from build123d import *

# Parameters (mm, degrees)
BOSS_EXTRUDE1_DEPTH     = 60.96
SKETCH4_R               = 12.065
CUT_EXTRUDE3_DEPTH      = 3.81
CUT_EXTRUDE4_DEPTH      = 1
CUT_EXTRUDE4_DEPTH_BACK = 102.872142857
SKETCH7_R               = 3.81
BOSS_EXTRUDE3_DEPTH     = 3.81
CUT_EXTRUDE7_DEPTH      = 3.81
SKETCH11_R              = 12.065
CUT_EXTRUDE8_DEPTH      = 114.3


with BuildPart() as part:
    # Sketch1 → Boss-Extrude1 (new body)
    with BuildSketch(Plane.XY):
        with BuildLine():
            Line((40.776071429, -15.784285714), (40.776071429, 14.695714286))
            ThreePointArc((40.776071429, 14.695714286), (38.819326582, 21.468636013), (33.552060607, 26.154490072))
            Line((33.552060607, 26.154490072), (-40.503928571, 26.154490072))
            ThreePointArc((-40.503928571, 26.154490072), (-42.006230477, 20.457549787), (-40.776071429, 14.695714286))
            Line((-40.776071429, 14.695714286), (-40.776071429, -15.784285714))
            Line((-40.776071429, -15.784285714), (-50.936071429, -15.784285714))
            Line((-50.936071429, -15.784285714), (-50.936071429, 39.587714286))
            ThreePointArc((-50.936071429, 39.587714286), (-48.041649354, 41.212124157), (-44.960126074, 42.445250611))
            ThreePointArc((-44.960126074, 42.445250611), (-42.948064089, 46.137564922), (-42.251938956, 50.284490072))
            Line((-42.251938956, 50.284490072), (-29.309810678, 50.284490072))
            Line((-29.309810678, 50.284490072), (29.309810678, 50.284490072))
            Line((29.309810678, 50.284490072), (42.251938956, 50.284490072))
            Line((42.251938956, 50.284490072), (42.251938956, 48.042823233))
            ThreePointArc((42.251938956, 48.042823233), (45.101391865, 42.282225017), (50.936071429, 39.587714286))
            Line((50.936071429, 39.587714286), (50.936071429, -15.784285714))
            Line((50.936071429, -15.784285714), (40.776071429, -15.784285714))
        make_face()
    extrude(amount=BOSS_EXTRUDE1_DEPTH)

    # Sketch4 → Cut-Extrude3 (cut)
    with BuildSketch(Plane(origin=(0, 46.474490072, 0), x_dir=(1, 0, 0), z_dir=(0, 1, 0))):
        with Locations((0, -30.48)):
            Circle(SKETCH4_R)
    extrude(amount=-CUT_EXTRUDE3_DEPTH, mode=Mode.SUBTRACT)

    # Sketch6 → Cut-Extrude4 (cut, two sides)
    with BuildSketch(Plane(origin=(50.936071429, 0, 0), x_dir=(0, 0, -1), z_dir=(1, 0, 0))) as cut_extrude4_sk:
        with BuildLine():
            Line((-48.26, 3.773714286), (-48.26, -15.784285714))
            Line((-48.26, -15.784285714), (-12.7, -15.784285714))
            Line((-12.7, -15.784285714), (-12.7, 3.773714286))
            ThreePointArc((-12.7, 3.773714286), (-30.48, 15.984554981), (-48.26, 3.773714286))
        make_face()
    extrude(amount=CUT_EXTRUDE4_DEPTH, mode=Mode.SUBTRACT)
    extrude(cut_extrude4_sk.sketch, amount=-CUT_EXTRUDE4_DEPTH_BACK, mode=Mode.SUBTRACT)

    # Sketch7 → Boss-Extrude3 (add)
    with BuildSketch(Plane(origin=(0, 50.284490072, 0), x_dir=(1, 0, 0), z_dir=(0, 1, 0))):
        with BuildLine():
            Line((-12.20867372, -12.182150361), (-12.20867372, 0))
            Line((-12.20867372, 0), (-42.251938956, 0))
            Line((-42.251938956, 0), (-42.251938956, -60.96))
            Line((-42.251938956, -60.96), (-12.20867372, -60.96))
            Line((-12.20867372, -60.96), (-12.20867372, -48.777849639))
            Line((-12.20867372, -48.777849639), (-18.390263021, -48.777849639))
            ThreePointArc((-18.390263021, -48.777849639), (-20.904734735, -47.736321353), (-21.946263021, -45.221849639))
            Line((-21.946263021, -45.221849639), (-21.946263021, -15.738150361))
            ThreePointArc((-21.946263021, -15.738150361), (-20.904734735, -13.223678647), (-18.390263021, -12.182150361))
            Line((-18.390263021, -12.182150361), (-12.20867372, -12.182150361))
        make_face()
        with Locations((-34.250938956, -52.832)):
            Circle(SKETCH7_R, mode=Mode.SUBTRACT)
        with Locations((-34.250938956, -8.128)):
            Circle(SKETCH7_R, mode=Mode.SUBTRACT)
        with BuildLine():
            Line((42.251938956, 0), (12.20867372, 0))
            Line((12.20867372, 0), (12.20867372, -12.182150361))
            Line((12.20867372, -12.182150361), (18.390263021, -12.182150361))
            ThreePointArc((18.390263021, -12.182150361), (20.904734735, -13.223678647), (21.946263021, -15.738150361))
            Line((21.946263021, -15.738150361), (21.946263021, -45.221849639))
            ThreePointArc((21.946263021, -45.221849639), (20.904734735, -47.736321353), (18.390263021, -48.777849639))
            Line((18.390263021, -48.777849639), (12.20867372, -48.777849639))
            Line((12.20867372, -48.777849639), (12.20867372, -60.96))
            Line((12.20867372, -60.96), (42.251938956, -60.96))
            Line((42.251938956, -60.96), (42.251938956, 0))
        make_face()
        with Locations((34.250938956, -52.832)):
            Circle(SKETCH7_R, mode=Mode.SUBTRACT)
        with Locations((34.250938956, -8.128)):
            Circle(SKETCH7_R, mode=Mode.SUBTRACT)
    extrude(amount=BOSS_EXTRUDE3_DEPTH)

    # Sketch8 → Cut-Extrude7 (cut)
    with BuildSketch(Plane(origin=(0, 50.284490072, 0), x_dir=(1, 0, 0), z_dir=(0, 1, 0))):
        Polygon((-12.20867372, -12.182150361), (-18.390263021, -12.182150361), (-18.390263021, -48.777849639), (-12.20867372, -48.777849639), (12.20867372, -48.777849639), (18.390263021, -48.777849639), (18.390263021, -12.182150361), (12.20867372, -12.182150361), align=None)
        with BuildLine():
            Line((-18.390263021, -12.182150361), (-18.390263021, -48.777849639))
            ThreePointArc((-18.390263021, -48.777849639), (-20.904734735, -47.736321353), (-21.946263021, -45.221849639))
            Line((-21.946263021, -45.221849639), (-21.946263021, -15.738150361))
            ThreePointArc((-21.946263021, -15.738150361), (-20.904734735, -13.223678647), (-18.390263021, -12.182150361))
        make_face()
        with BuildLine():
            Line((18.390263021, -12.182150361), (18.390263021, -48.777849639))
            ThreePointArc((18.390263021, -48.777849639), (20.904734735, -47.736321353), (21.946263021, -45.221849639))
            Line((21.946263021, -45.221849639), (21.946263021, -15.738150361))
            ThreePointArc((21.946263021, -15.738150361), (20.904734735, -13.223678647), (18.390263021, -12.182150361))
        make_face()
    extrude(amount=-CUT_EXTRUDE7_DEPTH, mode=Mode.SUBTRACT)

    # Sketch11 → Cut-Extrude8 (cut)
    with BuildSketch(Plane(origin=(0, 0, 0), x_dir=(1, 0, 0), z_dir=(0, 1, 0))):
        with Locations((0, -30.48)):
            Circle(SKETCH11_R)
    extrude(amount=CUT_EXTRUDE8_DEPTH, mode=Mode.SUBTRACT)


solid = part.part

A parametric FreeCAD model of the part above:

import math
import FreeCAD as App
import Part
import Sketcher

V = App.Vector
Q = App.Units.Quantity

doc = App.newDocument("Part")
body = doc.addObject("PartDesign::Body", "Body")

sketch1 = body.newObject("Sketcher::SketchObject", "Sketch")
sketch1.AttachmentSupport = (doc.getObject("XY_Plane"), [""])
sketch1.MapMode = "FlatFace"
sketch1.addGeometry(Part.LineSegment(V(40.776071, 14.695714, 0), V(40.776071, -15.784286, 0)), False)
sketch1.addGeometry(Part.LineSegment(V(40.776071, -15.784286, 0), V(50.936071, -15.784286, 0)), False)
sketch1.addGeometry(Part.LineSegment(V(50.936071, -15.784286, 0), V(50.936071, 39.587714, 0)), False)
sketch1.addGeometry(Part.ArcOfCircle(Part.Circle(V(51.834586, 49.197801, 0), V(0, 0, 1), 9.652), math.radians(-173.1274), math.radians(-95.341458)), False)
sketch1.addGeometry(Part.LineSegment(V(42.251939, 48.042823, 0), V(42.251939, 50.28449, 0)), False)
sketch1.addGeometry(Part.LineSegment(V(42.251939, 50.28449, 0), V(-42.251939, 50.28449, 0)), False)
sketch1.addGeometry(Part.ArcOfCircle(Part.Circle(V(-54.951939, 50.28449, 0), V(0, 0, 1), 12.7), math.radians(-38.116535), math.radians(0)), False)
sketch1.addGeometry(Part.ArcOfCircle(Part.Circle(V(-37.084317, 18.297132, 0), V(0, 0, 1), 25.4), math.radians(108.063524), math.radians(123.048221)), False)
sketch1.addGeometry(Part.LineSegment(V(-50.936071, 39.587714, 0), V(-50.936071, -15.784286, 0)), False)
sketch1.addGeometry(Part.LineSegment(V(-50.936071, -15.784286, 0), V(-40.776071, -15.784286, 0)), False)
sketch1.addGeometry(Part.LineSegment(V(-40.776071, -15.784286, 0), V(-40.776071, 14.695714, 0)), False)
sketch1.addGeometry(Part.ArcOfCircle(Part.Circle(V(-29.309811, 20.156013, 0), V(0, 0, 1), 12.7), math.radians(151.814936), math.radians(205.464057)), False)
sketch1.addGeometry(Part.LineSegment(V(-40.503929, 26.15449, 0), V(33.552061, 26.15449, 0)), False)
sketch1.addGeometry(Part.ArcOfCircle(Part.Circle(V(28.076071, 14.695714, 0), V(0, 0, 1), 12.7), math.radians(0), math.radians(64.457515)), False)
sketch1.addConstraint(Sketcher.Constraint("Coincident", 0, 2, 1, 1))
sketch1.addConstraint(Sketcher.Constraint("Coincident", 1, 2, 2, 1))
sketch1.addConstraint(Sketcher.Constraint("Coincident", 2, 2, 3, 2))
sketch1.addConstraint(Sketcher.Constraint("Coincident", 3, 1, 4, 1))
sketch1.addConstraint(Sketcher.Constraint("Coincident", 4, 2, 5, 1))
sketch1.addConstraint(Sketcher.Constraint("Coincident", 5, 2, 6, 2))
sketch1.addConstraint(Sketcher.Constraint("Coincident", 6, 1, 7, 1))
sketch1.addConstraint(Sketcher.Constraint("Coincident", 7, 2, 8, 1))
sketch1.addConstraint(Sketcher.Constraint("Coincident", 8, 2, 9, 1))
sketch1.addConstraint(Sketcher.Constraint("Coincident", 9, 2, 10, 1))
sketch1.addConstraint(Sketcher.Constraint("Coincident", 10, 2, 11, 2))
sketch1.addConstraint(Sketcher.Constraint("Coincident", 11, 1, 12, 1))
sketch1.addConstraint(Sketcher.Constraint("Coincident", 12, 2, 13, 2))
sketch1.addConstraint(Sketcher.Constraint("Tangent", 13, 1, 0, 1))
sketch1.addConstraint(Sketcher.Constraint("Vertical", 0))
sketch1.addConstraint(Sketcher.Constraint("Horizontal", 1))
sketch1.addConstraint(Sketcher.Constraint("Vertical", 2))
sketch1.addConstraint(Sketcher.Constraint("Vertical", 4))
sketch1.addConstraint(Sketcher.Constraint("Horizontal", 5))
sketch1.addConstraint(Sketcher.Constraint("Vertical", 8))
sketch1.addConstraint(Sketcher.Constraint("Horizontal", 9))
sketch1.addConstraint(Sketcher.Constraint("Vertical", 10))
sketch1.addConstraint(Sketcher.Constraint("Horizontal", 12))
sketch1.addConstraint(Sketcher.Constraint("Equal", 6, 11))
sketch1.addConstraint(Sketcher.Constraint("Equal", 11, 13))
sketch1.addConstraint(Sketcher.Constraint("Symmetric", 2, 2, 7, 2, -2))
sketch1.addConstraint(Sketcher.Constraint("Symmetric", 0, 2, 9, 2, -2))
sketch1.addConstraint(Sketcher.Constraint("Horizontal", 6, 3, 4, 2))
sketch1.addConstraint(Sketcher.Constraint("Horizontal", 13, 3, 10, 2))
sketch1.addConstraint(Sketcher.Constraint("Radius", 7, Q("1 in")))
sketch1.addConstraint(Sketcher.Constraint("Radius", 6, Q("0.5 in")))
sketch1.addConstraint(Sketcher.Constraint("Radius", 3, Q("0.38 in")))
sketch1.addConstraint(Sketcher.Constraint("DistanceX", 1, 1, 1, 2, Q("0.4 in")))
sketch1.addConstraint(Sketcher.Constraint("DistanceY", 0, 2, 0, 1, Q("1.2 in")))
sketch1.addConstraint(Sketcher.Constraint("DistanceY", 2, 1, 2, 2, Q("2.18 in")))
sketch1.addConstraint(Sketcher.Constraint("DistanceY", 12, 2, 4, 2, Q("0.95 in")))
sketch1.addConstraint(Sketcher.Constraint("DistanceX", 12, 1, 12, 2, 74.055989))
sketch1.addConstraint(Sketcher.Constraint("DistanceY", -1, 1, 3, 3, 49.197801))
sketch1.addConstraint(Sketcher.Constraint("DistanceY", 13, 3, 11, 3, 5.460299))
sketch1.addConstraint(Sketcher.Constraint("DistanceX", 5, 2, 5, 1, 84.503878))
sketch1.addConstraint(Sketcher.Constraint("DistanceY", 4, 1, 4, 2, 2.241667))
sketch1.addConstraint(Sketcher.Constraint("DistanceX", 6, 3, -1, 1, 54.951939))
sketch1.addConstraint(Sketcher.Constraint("DistanceY", -1, 1, 6, 3, 50.28449))
sketch1.addConstraint(Sketcher.Constraint("DistanceY", -1, 1, 6, 1, 42.445251))
pad1 = body.newObject("PartDesign::Pad", "Pad")
pad1.Profile = sketch1
pad1.Length = Q("2.4 in")

sketch2 = body.newObject("Sketcher::SketchObject", "Sketch001")
sketch2.AttachmentSupport = (doc.getObject("XZ_Plane"), [""])
sketch2.MapMode = "FlatFace"
sketch2.AttachmentOffset = App.Placement(V(0, 0, -46.47449), App.Rotation())
sketch2.addGeometry(Part.Circle(V(0, 30.48, 0), V(0, 0, 1), 12.065), False)
sketch2.addConstraint(Sketcher.Constraint("PointOnObject", 0, 3, -2))
sketch2.addConstraint(Sketcher.Constraint("Diameter", 0, Q("0.95 in")))
sketch2.addConstraint(Sketcher.Constraint("DistanceY", -1, 1, 0, 3, Q("1.2 in")))
pocket1 = body.newObject("PartDesign::Pocket", "Pocket")
pocket1.Profile = sketch2
pocket1.Length = Q("0.15 in")
pocket1.Reversed = True

sketch3 = body.newObject("Sketcher::SketchObject", "Sketch002")
sketch3.AttachmentSupport = (doc.getObject("YZ_Plane"), [""])
sketch3.MapMode = "FlatFace"
sketch3.AttachmentOffset = App.Placement(V(0, 0, 50.936071), App.Rotation())
sketch3.addGeometry(Part.LineSegment(V(3.773714, 48.26, 0), V(-15.784286, 48.26, 0)), False)
sketch3.addGeometry(Part.LineSegment(V(-15.784286, 48.26, 0), V(-15.784286, 12.7, 0)), False)
sketch3.addGeometry(Part.LineSegment(V(-15.784286, 12.7, 0), V(3.773714, 12.7, 0)), False)
sketch3.addGeometry(Part.ArcOfCircle(Part.Circle(V(-3.065445, 30.48, 0), V(0, 0, 1), 19.05), math.radians(-68.96053), math.radians(68.96053)), False)
sketch3.addConstraint(Sketcher.Constraint("Coincident", 0, 2, 1, 1))
sketch3.addConstraint(Sketcher.Constraint("Coincident", 1, 2, 2, 1))
sketch3.addConstraint(Sketcher.Constraint("Coincident", 2, 2, 3, 1))
sketch3.addConstraint(Sketcher.Constraint("Coincident", 3, 2, 0, 1))
sketch3.addConstraint(Sketcher.Constraint("Horizontal", 0))
sketch3.addConstraint(Sketcher.Constraint("Vertical", 1))
sketch3.addConstraint(Sketcher.Constraint("Horizontal", 2))
sketch3.addConstraint(Sketcher.Constraint("Vertical", 2, 2, 3, 2))
sketch3.addConstraint(Sketcher.Constraint("Radius", 3, Q("0.75 in")))
sketch3.addConstraint(Sketcher.Constraint("DistanceY", 1, 2, 1, 1, Q("1.4 in")))
sketch3.addConstraint(Sketcher.Constraint("DistanceX", 0, 2, 0, 1, Q("0.77 in")))
sketch3.addConstraint(Sketcher.Constraint("DistanceY", -1, 1, 3, 3, Q("1.2 in")))
sketch3.addConstraint(Sketcher.Constraint("DistanceX", 3, 3, -1, 1, 3.065445))
pocket2 = body.newObject("PartDesign::Pocket", "Pocket001")
pocket2.Profile = sketch3
pocket2.Type = "ThroughAll"
pocket2.Midplane = True

sketch4 = body.newObject("Sketcher::SketchObject", "Sketch003")
sketch4.AttachmentSupport = (doc.getObject("XZ_Plane"), [""])
sketch4.MapMode = "FlatFace"
sketch4.AttachmentOffset = App.Placement(V(0, 0, -50.28449), App.Rotation())
sketch4.addGeometry(Part.LineSegment(V(-12.208674, 12.18215, 0), V(-12.208674, 0, 0)), False)
sketch4.addGeometry(Part.LineSegment(V(-12.208674, 0, 0), V(-42.251939, 0, 0)), False)
sketch4.addGeometry(Part.LineSegment(V(-42.251939, 0, 0), V(-42.251939, 60.96, 0)), False)
sketch4.addGeometry(Part.LineSegment(V(-42.251939, 60.96, 0), V(-12.208674, 60.96, 0)), False)
sketch4.addGeometry(Part.LineSegment(V(-12.208674, 60.96, 0), V(-12.208674, 48.77785, 0)), False)
sketch4.addGeometry(Part.LineSegment(V(-12.208674, 48.77785, 0), V(-18.390263, 48.77785, 0)), False)
sketch4.addGeometry(Part.ArcOfCircle(Part.Circle(V(-18.390263, 45.22185, 0), V(0, 0, 1), 3.556), math.radians(90), math.radians(180)), False)
sketch4.addGeometry(Part.LineSegment(V(-21.946263, 45.22185, 0), V(-21.946263, 15.73815, 0)), False)
sketch4.addGeometry(Part.ArcOfCircle(Part.Circle(V(-18.390263, 15.73815, 0), V(0, 0, 1), 3.556), math.radians(180), math.radians(270)), False)
sketch4.addGeometry(Part.LineSegment(V(-18.390263, 12.18215, 0), V(-12.208674, 12.18215, 0)), False)
sketch4.addGeometry(Part.Circle(V(-34.250939, 52.832, 0), V(0, 0, 1), 3.81), False)
sketch4.addGeometry(Part.Circle(V(-34.250939, 8.128, 0), V(0, 0, 1), 3.81), False)
sketch4.addGeometry(Part.LineSegment(V(42.251939, 0, 0), V(12.208674, 0, 0)), False)
sketch4.addGeometry(Part.LineSegment(V(12.208674, 0, 0), V(12.208674, 12.18215, 0)), False)
sketch4.addGeometry(Part.LineSegment(V(12.208674, 12.18215, 0), V(18.390263, 12.18215, 0)), False)
sketch4.addGeometry(Part.ArcOfCircle(Part.Circle(V(18.390263, 15.73815, 0), V(0, 0, 1), 3.556), math.radians(-90), math.radians(0)), False)
sketch4.addGeometry(Part.LineSegment(V(21.946263, 15.73815, 0), V(21.946263, 45.22185, 0)), False)
sketch4.addGeometry(Part.ArcOfCircle(Part.Circle(V(18.390263, 45.22185, 0), V(0, 0, 1), 3.556), math.radians(0), math.radians(90)), False)
sketch4.addGeometry(Part.LineSegment(V(18.390263, 48.77785, 0), V(12.208674, 48.77785, 0)), False)
sketch4.addGeometry(Part.LineSegment(V(12.208674, 48.77785, 0), V(12.208674, 60.96, 0)), False)
sketch4.addGeometry(Part.LineSegment(V(12.208674, 60.96, 0), V(42.251939, 60.96, 0)), False)
sketch4.addGeometry(Part.LineSegment(V(42.251939, 60.96, 0), V(42.251939, 0, 0)), False)
sketch4.addGeometry(Part.Circle(V(34.250939, 52.832, 0), V(0, 0, 1), 3.81), False)
sketch4.addGeometry(Part.Circle(V(34.250939, 8.128, 0), V(0, 0, 1), 3.81), False)
sketch4.addConstraint(Sketcher.Constraint("Coincident", 0, 2, 1, 1))
sketch4.addConstraint(Sketcher.Constraint("Coincident", 1, 2, 2, 1))
sketch4.addConstraint(Sketcher.Constraint("Coincident", 2, 2, 3, 1))
sketch4.addConstraint(Sketcher.Constraint("Coincident", 3, 2, 4, 1))
sketch4.addConstraint(Sketcher.Constraint("Coincident", 4, 2, 5, 1))
sketch4.addConstraint(Sketcher.Constraint("Tangent", 5, 2, 6, 1))
sketch4.addConstraint(Sketcher.Constraint("Tangent", 6, 2, 7, 1))
sketch4.addConstraint(Sketcher.Constraint("Tangent", 7, 2, 8, 1))
sketch4.addConstraint(Sketcher.Constraint("Tangent", 8, 2, 9, 1))
sketch4.addConstraint(Sketcher.Constraint("Coincident", 9, 2, 0, 1))
sketch4.addConstraint(Sketcher.Constraint("Coincident", 12, 2, 13, 1))
sketch4.addConstraint(Sketcher.Constraint("Coincident", 13, 2, 14, 1))
sketch4.addConstraint(Sketcher.Constraint("Tangent", 14, 2, 15, 1))
sketch4.addConstraint(Sketcher.Constraint("Tangent", 15, 2, 16, 1))
sketch4.addConstraint(Sketcher.Constraint("Tangent", 16, 2, 17, 1))
sketch4.addConstraint(Sketcher.Constraint("Tangent", 17, 2, 18, 1))
sketch4.addConstraint(Sketcher.Constraint("Coincident", 18, 2, 19, 1))
sketch4.addConstraint(Sketcher.Constraint("Coincident", 19, 2, 20, 1))
sketch4.addConstraint(Sketcher.Constraint("Coincident", 20, 2, 21, 1))
sketch4.addConstraint(Sketcher.Constraint("Coincident", 21, 2, 12, 1))
sketch4.addConstraint(Sketcher.Constraint("Vertical", 0))
sketch4.addConstraint(Sketcher.Constraint("Horizontal", 1))
sketch4.addConstraint(Sketcher.Constraint("Vertical", 2))
sketch4.addConstraint(Sketcher.Constraint("Horizontal", 3))
sketch4.addConstraint(Sketcher.Constraint("Vertical", 4))
sketch4.addConstraint(Sketcher.Constraint("Horizontal", 5))
sketch4.addConstraint(Sketcher.Constraint("Vertical", 7))
sketch4.addConstraint(Sketcher.Constraint("Horizontal", 9))
sketch4.addConstraint(Sketcher.Constraint("Horizontal", 12))
sketch4.addConstraint(Sketcher.Constraint("Vertical", 13))
sketch4.addConstraint(Sketcher.Constraint("Horizontal", 14))
sketch4.addConstraint(Sketcher.Constraint("Vertical", 16))
sketch4.addConstraint(Sketcher.Constraint("Horizontal", 18))
sketch4.addConstraint(Sketcher.Constraint("Vertical", 19))
sketch4.addConstraint(Sketcher.Constraint("Horizontal", 20))
sketch4.addConstraint(Sketcher.Constraint("Vertical", 21))
sketch4.addConstraint(Sketcher.Constraint("Equal", 6, 8))
sketch4.addConstraint(Sketcher.Constraint("Equal", 10, 11))
sketch4.addConstraint(Sketcher.Constraint("Equal", 8, 15))
sketch4.addConstraint(Sketcher.Constraint("Equal", 15, 17))
sketch4.addConstraint(Sketcher.Constraint("Equal", 11, 22))
sketch4.addConstraint(Sketcher.Constraint("Equal", 22, 23))
sketch4.addConstraint(Sketcher.Constraint("Symmetric", 0, 2, 12, 2, -1, 1))
sketch4.addConstraint(Sketcher.Constraint("Symmetric", 8, 3, 15, 3, -2))
sketch4.addConstraint(Sketcher.Constraint("Symmetric", 10, 3, 22, 3, -2))
sketch4.addConstraint(Sketcher.Constraint("Symmetric", 11, 3, 23, 3, -2))
sketch4.addConstraint(Sketcher.Constraint("Symmetric", 4, 2, 18, 2, -2))
sketch4.addConstraint(Sketcher.Constraint("Symmetric", 2, 2, 20, 2, -2))
sketch4.addConstraint(Sketcher.Constraint("PointOnObject", 0, 2, -1))
sketch4.addConstraint(Sketcher.Constraint("Vertical", 10, 3, 11, 3))
sketch4.addConstraint(Sketcher.Constraint("Vertical", 0, 2, 3, 2))
sketch4.addConstraint(Sketcher.Constraint("Equal", 0, 4))
sketch4.addConstraint(Sketcher.Constraint("Diameter", 10, Q("0.3 in")))
sketch4.addConstraint(Sketcher.Constraint("Radius", 6, Q("0.14 in")))
sketch4.addConstraint(Sketcher.Constraint("DistanceY", 2, 1, 2, 2, Q("2.4 in")))
sketch4.addConstraint(Sketcher.Constraint("DistanceY", -1, 1, 10, 3, Q("2.08 in")))
sketch4.addConstraint(Sketcher.Constraint("DistanceY", -1, 1, 11, 3, Q("0.32 in")))
sketch4.addConstraint(Sketcher.Constraint("DistanceX", 1, 2, 11, 3, Q("0.315 in")))
sketch4.addConstraint(Sketcher.Constraint("DistanceY", 7, 2, 7, 1, 29.483699))
sketch4.addConstraint(Sketcher.Constraint("DistanceX", 5, 2, 5, 1, 6.181589))
sketch4.addConstraint(Sketcher.Constraint("DistanceX", 11, 3, 15, 3, 52.641202))
sketch4.addConstraint(Sketcher.Constraint("DistanceX", 1, 2, 1, 1, 30.043265))
pad2 = body.newObject("PartDesign::Pad", "Pad001")
pad2.Profile = sketch4
pad2.Length = Q("0.15 in")
pad2.Reversed = True

sketch5 = body.newObject("Sketcher::SketchObject", "Sketch004")
sketch5.AttachmentSupport = (doc.getObject("XZ_Plane"), [""])
sketch5.MapMode = "FlatFace"
sketch5.AttachmentOffset = App.Placement(V(0, 0, -50.28449), App.Rotation())
sketch5.addGeometry(Part.LineSegment(V(-18.390263, 48.77785, 0), V(18.390263, 48.77785, 0)), False)
sketch5.addGeometry(Part.ArcOfCircle(Part.Circle(V(18.390263, 45.22185, 0), V(0, 0, 1), 3.556), math.radians(0), math.radians(90)), False)
sketch5.addGeometry(Part.LineSegment(V(21.946263, 45.22185, 0), V(21.946263, 15.73815, 0)), False)
sketch5.addGeometry(Part.ArcOfCircle(Part.Circle(V(18.390263, 15.73815, 0), V(0, 0, 1), 3.556), math.radians(-90), math.radians(0)), False)
sketch5.addGeometry(Part.LineSegment(V(18.390263, 12.18215, 0), V(-18.390263, 12.18215, 0)), False)
sketch5.addGeometry(Part.ArcOfCircle(Part.Circle(V(-18.390263, 15.73815, 0), V(0, 0, 1), 3.556), math.radians(180), math.radians(270)), False)
sketch5.addGeometry(Part.LineSegment(V(-21.946263, 15.73815, 0), V(-21.946263, 45.22185, 0)), False)
sketch5.addGeometry(Part.ArcOfCircle(Part.Circle(V(-18.390263, 45.22185, 0), V(0, 0, 1), 3.556), math.radians(90), math.radians(180)), False)
sketch5.addConstraint(Sketcher.Constraint("Tangent", 0, 2, 1, 2))
sketch5.addConstraint(Sketcher.Constraint("Tangent", 1, 1, 2, 1))
sketch5.addConstraint(Sketcher.Constraint("Tangent", 2, 2, 3, 2))
sketch5.addConstraint(Sketcher.Constraint("Tangent", 3, 1, 4, 1))
sketch5.addConstraint(Sketcher.Constraint("Tangent", 4, 2, 5, 2))
sketch5.addConstraint(Sketcher.Constraint("Tangent", 5, 1, 6, 1))
sketch5.addConstraint(Sketcher.Constraint("Tangent", 6, 2, 7, 2))
sketch5.addConstraint(Sketcher.Constraint("Tangent", 7, 1, 0, 1))
sketch5.addConstraint(Sketcher.Constraint("Horizontal", 0))
sketch5.addConstraint(Sketcher.Constraint("Vertical", 2))
sketch5.addConstraint(Sketcher.Constraint("Horizontal", 4))
sketch5.addConstraint(Sketcher.Constraint("Vertical", 6))
sketch5.addConstraint(Sketcher.Constraint("Equal", 1, 3))
sketch5.addConstraint(Sketcher.Constraint("Equal", 3, 5))
sketch5.addConstraint(Sketcher.Constraint("Equal", 5, 7))
sketch5.addConstraint(Sketcher.Constraint("Radius", 1, Q("0.14 in")))
sketch5.addConstraint(Sketcher.Constraint("DistanceY", 2, 2, 2, 1, 29.483699))
sketch5.addConstraint(Sketcher.Constraint("DistanceX", 0, 1, 0, 2, 36.780526))
sketch5.addConstraint(Sketcher.Constraint("DistanceY", -1, 1, 1, 3, 45.22185))
sketch5.addConstraint(Sketcher.Constraint("DistanceX", -1, 1, 1, 3, 18.390263))
pocket3 = body.newObject("PartDesign::Pocket", "Pocket002")
pocket3.Profile = sketch5
pocket3.Length = Q("0.15 in")
pocket3.Reversed = True

sketch6 = body.newObject("Sketcher::SketchObject", "Sketch005")
sketch6.AttachmentSupport = (doc.getObject("XZ_Plane"), [""])
sketch6.MapMode = "FlatFace"
sketch6.addGeometry(Part.Circle(V(0, 30.48, 0), V(0, 0, 1), 12.065), False)
sketch6.addConstraint(Sketcher.Constraint("PointOnObject", 0, 3, -2))
sketch6.addConstraint(Sketcher.Constraint("Diameter", 0, Q("0.95 in")))
sketch6.addConstraint(Sketcher.Constraint("DistanceY", -1, 1, 0, 3, Q("1.2 in")))
pocket4 = body.newObject("PartDesign::Pocket", "Pocket003")
pocket4.Profile = sketch6
pocket4.Length = Q("4.5 in")

doc.recompute()
